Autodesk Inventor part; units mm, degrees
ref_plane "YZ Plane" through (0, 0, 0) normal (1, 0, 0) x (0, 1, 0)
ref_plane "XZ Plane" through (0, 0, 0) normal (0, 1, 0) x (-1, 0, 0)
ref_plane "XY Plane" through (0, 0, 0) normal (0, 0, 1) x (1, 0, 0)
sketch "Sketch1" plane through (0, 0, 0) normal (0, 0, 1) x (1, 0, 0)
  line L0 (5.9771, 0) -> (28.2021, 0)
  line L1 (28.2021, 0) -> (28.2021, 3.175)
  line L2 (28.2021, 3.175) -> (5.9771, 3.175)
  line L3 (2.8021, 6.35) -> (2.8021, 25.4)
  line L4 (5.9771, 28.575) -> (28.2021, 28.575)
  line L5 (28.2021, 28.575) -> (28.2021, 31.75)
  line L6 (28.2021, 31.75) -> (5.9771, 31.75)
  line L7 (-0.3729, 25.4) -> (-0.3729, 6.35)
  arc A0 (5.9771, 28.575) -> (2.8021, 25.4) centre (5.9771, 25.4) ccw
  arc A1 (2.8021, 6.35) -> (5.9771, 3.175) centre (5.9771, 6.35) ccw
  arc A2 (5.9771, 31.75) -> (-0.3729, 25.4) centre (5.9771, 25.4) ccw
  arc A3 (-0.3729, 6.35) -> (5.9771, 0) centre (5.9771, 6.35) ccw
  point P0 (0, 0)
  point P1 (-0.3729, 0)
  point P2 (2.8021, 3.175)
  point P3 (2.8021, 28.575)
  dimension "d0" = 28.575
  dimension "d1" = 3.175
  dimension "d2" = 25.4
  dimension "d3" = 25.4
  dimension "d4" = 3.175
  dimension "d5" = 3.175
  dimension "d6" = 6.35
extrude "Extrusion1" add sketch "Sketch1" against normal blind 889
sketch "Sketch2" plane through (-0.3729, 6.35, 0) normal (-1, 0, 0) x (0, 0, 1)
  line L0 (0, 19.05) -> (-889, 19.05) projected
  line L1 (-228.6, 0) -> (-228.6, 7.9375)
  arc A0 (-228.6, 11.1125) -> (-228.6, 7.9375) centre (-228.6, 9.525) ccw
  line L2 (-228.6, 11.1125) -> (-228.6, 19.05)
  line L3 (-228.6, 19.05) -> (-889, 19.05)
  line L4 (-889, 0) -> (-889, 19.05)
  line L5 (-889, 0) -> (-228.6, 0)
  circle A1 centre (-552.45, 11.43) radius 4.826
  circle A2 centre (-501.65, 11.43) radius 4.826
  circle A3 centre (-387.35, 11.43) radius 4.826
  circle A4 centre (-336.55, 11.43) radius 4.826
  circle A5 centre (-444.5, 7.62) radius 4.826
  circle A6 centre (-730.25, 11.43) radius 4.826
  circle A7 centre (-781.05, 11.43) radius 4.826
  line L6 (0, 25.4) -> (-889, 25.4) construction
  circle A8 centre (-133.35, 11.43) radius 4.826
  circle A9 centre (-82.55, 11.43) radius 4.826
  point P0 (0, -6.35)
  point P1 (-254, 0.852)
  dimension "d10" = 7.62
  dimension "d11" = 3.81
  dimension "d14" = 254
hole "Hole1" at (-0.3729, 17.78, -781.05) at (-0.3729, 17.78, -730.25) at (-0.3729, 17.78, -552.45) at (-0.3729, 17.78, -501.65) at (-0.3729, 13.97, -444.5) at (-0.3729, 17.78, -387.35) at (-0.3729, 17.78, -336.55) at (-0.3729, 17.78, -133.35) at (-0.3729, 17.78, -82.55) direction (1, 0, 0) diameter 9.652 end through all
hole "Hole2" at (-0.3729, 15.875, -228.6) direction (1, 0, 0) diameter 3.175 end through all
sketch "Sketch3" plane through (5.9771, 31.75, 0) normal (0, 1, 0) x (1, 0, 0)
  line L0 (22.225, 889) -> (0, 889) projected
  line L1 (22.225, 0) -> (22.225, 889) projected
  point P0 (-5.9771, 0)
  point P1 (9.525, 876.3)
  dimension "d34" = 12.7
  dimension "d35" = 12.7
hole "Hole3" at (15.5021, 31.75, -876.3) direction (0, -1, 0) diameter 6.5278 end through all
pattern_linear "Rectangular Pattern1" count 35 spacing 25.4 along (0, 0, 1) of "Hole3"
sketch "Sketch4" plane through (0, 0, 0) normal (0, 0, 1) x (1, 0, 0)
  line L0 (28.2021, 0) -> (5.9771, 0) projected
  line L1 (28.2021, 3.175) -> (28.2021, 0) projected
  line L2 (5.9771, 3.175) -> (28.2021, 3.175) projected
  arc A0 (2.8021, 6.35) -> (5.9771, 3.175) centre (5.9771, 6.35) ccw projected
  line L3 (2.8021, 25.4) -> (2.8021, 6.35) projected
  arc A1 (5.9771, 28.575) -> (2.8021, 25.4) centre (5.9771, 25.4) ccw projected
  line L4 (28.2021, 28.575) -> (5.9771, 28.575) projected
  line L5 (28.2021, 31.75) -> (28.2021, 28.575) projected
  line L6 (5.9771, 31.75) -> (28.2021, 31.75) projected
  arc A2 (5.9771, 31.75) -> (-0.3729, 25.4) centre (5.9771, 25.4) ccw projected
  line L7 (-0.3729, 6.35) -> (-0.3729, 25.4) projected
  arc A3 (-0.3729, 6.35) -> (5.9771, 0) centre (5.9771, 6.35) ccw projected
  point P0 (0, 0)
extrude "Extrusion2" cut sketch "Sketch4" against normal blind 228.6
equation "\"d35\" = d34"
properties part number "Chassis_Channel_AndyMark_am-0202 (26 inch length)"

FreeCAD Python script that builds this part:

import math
import FreeCAD as App
import Part
import Sketcher
from FreeCAD import Vector
Q = App.Units.Quantity

doc = App.newDocument("Part")
body = doc.addObject("PartDesign::Body", "Body")

sketch1 = doc.addObject("Sketcher::SketchObject", "Sketch")
body.addObject(sketch1)
sketch1.AttachmentSupport = (doc.XY_Plane, [""])
sketch1.MapMode = "FlatFace"
sketch1.addGeometry([
    Part.ArcOfCircle(Part.Circle(Vector(6, 6.3, 0), Vector(0, 0, 1), 6.3), math.radians(180), math.radians(270)),
    Part.LineSegment(Vector(6, 0, 0), Vector(28.2, 0, 0)),
    Part.LineSegment(Vector(28.2, 0, 0), Vector(28.2, 3.2, 0)),
    Part.LineSegment(Vector(28.2, 3.2, 0), Vector(6, 3.2, 0)),
    Part.ArcOfCircle(Part.Circle(Vector(6, 6.3, 0), Vector(0, 0, 1), 3.2), math.radians(180), math.radians(270)),
    Part.LineSegment(Vector(2.8, 6.3, 0), Vector(2.8, 25.4, 0)),
    Part.ArcOfCircle(Part.Circle(Vector(6, 25.4, 0), Vector(0, 0, 1), 3.2), math.radians(90), math.radians(180)),
    Part.LineSegment(Vector(6, 28.6, 0), Vector(28.2, 28.6, 0)),
    Part.LineSegment(Vector(28.2, 28.6, 0), Vector(28.2, 31.8, 0)),
    Part.LineSegment(Vector(28.2, 31.8, 0), Vector(6, 31.8, 0)),
    Part.ArcOfCircle(Part.Circle(Vector(6, 25.4, 0), Vector(0, 0, 1), 6.4), math.radians(90), math.radians(180)),
    Part.LineSegment(Vector(-0.4, 25.4, 0), Vector(-0.4, 6.3, 0)),
], False)
sketch1.addConstraint([
    Sketcher.Constraint("Tangent", 0, 2, 1, 1),
    Sketcher.Constraint("Coincident", 1, 2, 2, 1),
    Sketcher.Constraint("Coincident", 2, 2, 3, 1),
    Sketcher.Constraint("Tangent", 3, 2, 4, 2),
    Sketcher.Constraint("Tangent", 4, 1, 5, 1),
    Sketcher.Constraint("Tangent", 5, 2, 6, 2),
    Sketcher.Constraint("Tangent", 6, 1, 7, 1),
    Sketcher.Constraint("Coincident", 7, 2, 8, 1),
    Sketcher.Constraint("Coincident", 8, 2, 9, 1),
    Sketcher.Constraint("Tangent", 9, 2, 10, 1),
    Sketcher.Constraint("Tangent", 10, 2, 11, 1),
    Sketcher.Constraint("Tangent", 11, 2, 0, 1),
    Sketcher.Constraint("Horizontal", 1),
    Sketcher.Constraint("Vertical", 2),
    Sketcher.Constraint("Horizontal", 3),
    Sketcher.Constraint("Vertical", 5),
    Sketcher.Constraint("Horizontal", 7),
    Sketcher.Constraint("Vertical", 8),
    Sketcher.Constraint("Horizontal", 9),
    Sketcher.Constraint("Vertical", 11),
    Sketcher.Constraint("Coincident", 4, 3, 0, 3),
    Sketcher.Constraint("Coincident", 10, 3, 6, 3),
    Sketcher.Constraint("Equal", 4, 6),
    Sketcher.Constraint("PointOnObject", 0, 2, -1),
    Sketcher.Constraint("Vertical", 2, 2, 7, 2),
    Sketcher.Constraint("Radius", 0, Q("0.25 in")),
    Sketcher.Constraint("DistanceY", -1, 1, 6, 3, Q("1 in")),
    Sketcher.Constraint("Radius", 4, Q("0.125 in")),
    Sketcher.Constraint("DistanceX", 5, 2, 7, 2, Q("1 in")),
    Sketcher.Constraint("DistanceX", -1, 1, 0, 3, 5.977),
])
pad1 = doc.addObject("PartDesign::Pad", "Pad")
body.addObject(pad1)
pad1.Profile = sketch1
pad1.Length = Q("35 in")
pad1.Reversed = True

sketch2 = doc.addObject("Sketcher::SketchObject", "Sketch001")
body.addObject(sketch2)
sketch2.AttachmentSupport = (doc.YZ_Plane, [""])
sketch2.MapMode = "FlatFace"
sketch2.AttachmentOffset = App.Placement(Vector(0, 0, -0.3729), App.Rotation())
sketch2.addGeometry([
    Part.Circle(Vector(17.8, -781, 0), Vector(0, 0, 1), 4.8),
    Part.Circle(Vector(17.8, -730.2, 0), Vector(0, 0, 1), 4.8),
    Part.Circle(Vector(17.8, -552.5, 0), Vector(0, 0, 1), 4.8),
    Part.Circle(Vector(17.8, -501.6, 0), Vector(0, 0, 1), 4.8),
    Part.Circle(Vector(14, -444.5, 0), Vector(0, 0, 1), 4.8),
    Part.Circle(Vector(17.8, -387.4, 0), Vector(0, 0, 1), 4.8),
    Part.Circle(Vector(17.8, -336.6, 0), Vector(0, 0, 1), 4.8),
    Part.Circle(Vector(17.8, -133.3, 0), Vector(0, 0, 1), 4.8),
    Part.Circle(Vector(17.8, -82.5, 0), Vector(0, 0, 1), 4.8),
], False)
sketch2.addConstraint([
    Sketcher.Constraint("Equal", 0, 1),
    Sketcher.Constraint("Equal", 1, 2),
    Sketcher.Constraint("Equal", 2, 3),
    Sketcher.Constraint("Equal", 3, 4),
    Sketcher.Constraint("Equal", 4, 5),
    Sketcher.Constraint("Equal", 5, 6),
    Sketcher.Constraint("Equal", 6, 7),
    Sketcher.Constraint("Equal", 7, 8),
    Sketcher.Constraint("Vertical", 0, 3, 1, 3),
    Sketcher.Constraint("Vertical", 1, 3, 2, 3),
    Sketcher.Constraint("Vertical", 2, 3, 3, 3),
    Sketcher.Constraint("Vertical", 3, 3, 5, 3),
    Sketcher.Constraint("Vertical", 5, 3, 6, 3),
    Sketcher.Constraint("Vertical", 6, 3, 7, 3),
    Sketcher.Constraint("Vertical", 7, 3, 8, 3),
    Sketcher.Constraint("Diameter", 0, Q("0.38 in")),
    Sketcher.Constraint("DistanceY", 0, 3, 1, 3, Q("2 in")),
    Sketcher.Constraint("DistanceY", 1, 3, 2, 3, Q("7 in")),
    Sketcher.Constraint("DistanceY", 2, 3, 3, 3, Q("2 in")),
    Sketcher.Constraint("DistanceY", 5, 3, 6, 3, Q("2 in")),
    Sketcher.Constraint("DistanceY", 6, 3, 7, 3, Q("8 in")),
    Sketcher.Constraint("DistanceY", 7, 3, 8, 3, Q("2 in")),
    Sketcher.Constraint("DistanceX", -1, 1, 0, 3, Q("0.7 in")),
    Sketcher.Constraint("DistanceY", 4, 3, -1, 1, Q("17.5 in")),
    Sketcher.Constraint("DistanceY", 3, 3, 5, 3, Q("4.5 in")),
    Sketcher.Constraint("DistanceY", 0, 3, -1, 1, Q("30.75 in")),
    Sketcher.Constraint("DistanceX", -1, 1, 4, 3, Q("0.55 in")),
])
doc.recompute()
hole = doc.addObject("PartDesign::Hole", "Hole")
body.addObject(hole)
hole.Profile = sketch2
hole.ThreadType = "None"
hole.Diameter = Q("0.38 in")
hole.DepthType = "ThroughAll"
hole.Reversed = True

sketch3 = doc.addObject("Sketcher::SketchObject", "Sketch002")
body.addObject(sketch3)
sketch3.AttachmentSupport = (doc.YZ_Plane, [""])
sketch3.MapMode = "FlatFace"
sketch3.AttachmentOffset = App.Placement(Vector(0, 0, -0.3729), App.Rotation())
sketch3.addGeometry(Part.Circle(Vector(15.9, -228.6, 0), Vector(0, 0, 1), 1.6), False)
sketch3.addConstraint([
    Sketcher.Constraint("Diameter", 0, Q("0.125 in")),
    Sketcher.Constraint("DistanceY", 0, 3, -1, 1, Q("9 in")),
    Sketcher.Constraint("DistanceX", -1, 1, 0, 3, Q("0.625 in")),
])
doc.recompute()
hole2 = doc.addObject("PartDesign::Hole", "Hole001")
body.addObject(hole2)
hole2.Profile = sketch3
hole2.ThreadType = "None"
hole2.Diameter = Q("0.125 in")
hole2.DepthType = "ThroughAll"
hole2.Reversed = True

sketch4 = doc.addObject("Sketcher::SketchObject", "Sketch003")
body.addObject(sketch4)
sketch4.AttachmentSupport = (doc.XZ_Plane, [""])
sketch4.MapMode = "FlatFace"
sketch4.AttachmentOffset = App.Placement(Vector(0, 0, -1.25 * 25.4), App.Rotation())
sketch4.addGeometry(Part.Circle(Vector(15.5, -876.3, 0), Vector(0, 0, 1), 3.3), False)
sketch4.addConstraint([
    Sketcher.Constraint("Diameter", 0, Q("0.257 in")),
    Sketcher.Constraint("DistanceY", 0, 3, -1, 1, Q("34.5 in")),
    Sketcher.Constraint("DistanceX", -1, 1, 0, 3, 15.502),
])
doc.recompute()
hole3 = doc.addObject("PartDesign::Hole", "Hole002")
body.addObject(hole3)
hole3.Profile = sketch4
hole3.ThreadType = "None"
hole3.Diameter = Q("0.257 in")
hole3.DepthType = "ThroughAll"
hole3.Reversed = True
doc.recompute()

linearpattern = doc.addObject("PartDesign::LinearPattern", "LinearPattern")
body.addObject(linearpattern)
linearpattern.Originals = [hole3]
linearpattern.Direction = (doc.Z_Axis, [""])
linearpattern.Mode = "offset"
linearpattern.Offset = Q("1 in")
linearpattern.Occurrences = 35
body.Tip = linearpattern

sketch5 = doc.addObject("Sketcher::SketchObject", "Sketch004")
body.addObject(sketch5)
sketch5.AttachmentSupport = (doc.XY_Plane, [""])
sketch5.MapMode = "FlatFace"
sketch5.addGeometry([
    Part.LineSegment(Vector(6, 0, 0), Vector(28.2, 0, 0)),
    Part.LineSegment(Vector(28.2, 0, 0), Vector(28.2, 3.2, 0)),
    Part.LineSegment(Vector(28.2, 3.2, 0), Vector(6, 3.2, 0)),
    Part.ArcOfCircle(Part.Circle(Vector(6, 6.3, 0), Vector(0, 0, 1), 3.2), math.radians(180), math.radians(270)),
    Part.LineSegment(Vector(2.8, 6.3, 0), Vector(2.8, 25.4, 0)),
    Part.ArcOfCircle(Part.Circle(Vector(6, 25.4, 0), Vector(0, 0, 1), 3.2), math.radians(90), math.radians(180)),
    Part.LineSegment(Vector(6, 28.6, 0), Vector(28.2, 28.6, 0)),
    Part.LineSegment(Vector(28.2, 28.6, 0), Vector(28.2, 31.8, 0)),
    Part.LineSegment(Vector(28.2, 31.8, 0), Vector(6, 31.8, 0)),
    Part.ArcOfCircle(Part.Circle(Vector(6, 25.4, 0), Vector(0, 0, 1), 6.4), math.radians(90), math.radians(180)),
    Part.LineSegment(Vector(-0.4, 25.4, 0), Vector(-0.4, 6.3, 0)),
    Part.ArcOfCircle(Part.Circle(Vector(6, 6.3, 0), Vector(0, 0, 1), 6.3), math.radians(180), math.radians(270)),
], False)
sketch5.addConstraint([
    Sketcher.Constraint("Coincident", 0, 2, 1, 1),
    Sketcher.Constraint("Coincident", 1, 2, 2, 1),
    Sketcher.Constraint("Tangent", 2, 2, 3, 2),
    Sketcher.Constraint("Tangent", 3, 1, 4, 1),
    Sketcher.Constraint("Tangent", 4, 2, 5, 2),
    Sketcher.Constraint("Tangent", 5, 1, 6, 1),
    Sketcher.Constraint("Coincident", 6, 2, 7, 1),
    Sketcher.Constraint("Coincident", 7, 2, 8, 1),
    Sketcher.Constraint("Tangent", 8, 2, 9, 1),
    Sketcher.Constraint("Tangent", 9, 2, 10, 1),
    Sketcher.Constraint("Tangent", 10, 2, 11, 1),
    Sketcher.Constraint("Tangent", 11, 2, 0, 1),
    Sketcher.Constraint("Horizontal", 0),
    Sketcher.Constraint("Vertical", 1),
    Sketcher.Constraint("Horizontal", 2),
    Sketcher.Constraint("Vertical", 4),
    Sketcher.Constraint("Horizontal", 6),
    Sketcher.Constraint("Vertical", 7),
    Sketcher.Constraint("Horizontal", 8),
    Sketcher.Constraint("Vertical", 10),
    Sketcher.Constraint("Coincident", 9, 3, 5, 3),
    Sketcher.Constraint("Coincident", 11, 3, 3, 3),
    Sketcher.Constraint("Equal", 3, 5),
    Sketcher.Constraint("PointOnObject", 0, 2, -1),
    Sketcher.Constraint("Vertical", 1, 2, 6, 2),
    Sketcher.Constraint("Radius", 9, Q("0.25 in")),
    Sketcher.Constraint("DistanceY", -1, 1, 5, 3, Q("1 in")),
    Sketcher.Constraint("Radius", 3, Q("0.125 in")),
    Sketcher.Constraint("DistanceX", 4, 2, 6, 2, Q("1 in")),
    Sketcher.Constraint("DistanceX", -1, 1, 3, 3, 5.977),
])
pocket1 = doc.addObject("PartDesign::Pocket", "Pocket")
body.addObject(pocket1)
pocket1.Profile = sketch5
pocket1.Length = Q("9 in")

doc.recompute()
